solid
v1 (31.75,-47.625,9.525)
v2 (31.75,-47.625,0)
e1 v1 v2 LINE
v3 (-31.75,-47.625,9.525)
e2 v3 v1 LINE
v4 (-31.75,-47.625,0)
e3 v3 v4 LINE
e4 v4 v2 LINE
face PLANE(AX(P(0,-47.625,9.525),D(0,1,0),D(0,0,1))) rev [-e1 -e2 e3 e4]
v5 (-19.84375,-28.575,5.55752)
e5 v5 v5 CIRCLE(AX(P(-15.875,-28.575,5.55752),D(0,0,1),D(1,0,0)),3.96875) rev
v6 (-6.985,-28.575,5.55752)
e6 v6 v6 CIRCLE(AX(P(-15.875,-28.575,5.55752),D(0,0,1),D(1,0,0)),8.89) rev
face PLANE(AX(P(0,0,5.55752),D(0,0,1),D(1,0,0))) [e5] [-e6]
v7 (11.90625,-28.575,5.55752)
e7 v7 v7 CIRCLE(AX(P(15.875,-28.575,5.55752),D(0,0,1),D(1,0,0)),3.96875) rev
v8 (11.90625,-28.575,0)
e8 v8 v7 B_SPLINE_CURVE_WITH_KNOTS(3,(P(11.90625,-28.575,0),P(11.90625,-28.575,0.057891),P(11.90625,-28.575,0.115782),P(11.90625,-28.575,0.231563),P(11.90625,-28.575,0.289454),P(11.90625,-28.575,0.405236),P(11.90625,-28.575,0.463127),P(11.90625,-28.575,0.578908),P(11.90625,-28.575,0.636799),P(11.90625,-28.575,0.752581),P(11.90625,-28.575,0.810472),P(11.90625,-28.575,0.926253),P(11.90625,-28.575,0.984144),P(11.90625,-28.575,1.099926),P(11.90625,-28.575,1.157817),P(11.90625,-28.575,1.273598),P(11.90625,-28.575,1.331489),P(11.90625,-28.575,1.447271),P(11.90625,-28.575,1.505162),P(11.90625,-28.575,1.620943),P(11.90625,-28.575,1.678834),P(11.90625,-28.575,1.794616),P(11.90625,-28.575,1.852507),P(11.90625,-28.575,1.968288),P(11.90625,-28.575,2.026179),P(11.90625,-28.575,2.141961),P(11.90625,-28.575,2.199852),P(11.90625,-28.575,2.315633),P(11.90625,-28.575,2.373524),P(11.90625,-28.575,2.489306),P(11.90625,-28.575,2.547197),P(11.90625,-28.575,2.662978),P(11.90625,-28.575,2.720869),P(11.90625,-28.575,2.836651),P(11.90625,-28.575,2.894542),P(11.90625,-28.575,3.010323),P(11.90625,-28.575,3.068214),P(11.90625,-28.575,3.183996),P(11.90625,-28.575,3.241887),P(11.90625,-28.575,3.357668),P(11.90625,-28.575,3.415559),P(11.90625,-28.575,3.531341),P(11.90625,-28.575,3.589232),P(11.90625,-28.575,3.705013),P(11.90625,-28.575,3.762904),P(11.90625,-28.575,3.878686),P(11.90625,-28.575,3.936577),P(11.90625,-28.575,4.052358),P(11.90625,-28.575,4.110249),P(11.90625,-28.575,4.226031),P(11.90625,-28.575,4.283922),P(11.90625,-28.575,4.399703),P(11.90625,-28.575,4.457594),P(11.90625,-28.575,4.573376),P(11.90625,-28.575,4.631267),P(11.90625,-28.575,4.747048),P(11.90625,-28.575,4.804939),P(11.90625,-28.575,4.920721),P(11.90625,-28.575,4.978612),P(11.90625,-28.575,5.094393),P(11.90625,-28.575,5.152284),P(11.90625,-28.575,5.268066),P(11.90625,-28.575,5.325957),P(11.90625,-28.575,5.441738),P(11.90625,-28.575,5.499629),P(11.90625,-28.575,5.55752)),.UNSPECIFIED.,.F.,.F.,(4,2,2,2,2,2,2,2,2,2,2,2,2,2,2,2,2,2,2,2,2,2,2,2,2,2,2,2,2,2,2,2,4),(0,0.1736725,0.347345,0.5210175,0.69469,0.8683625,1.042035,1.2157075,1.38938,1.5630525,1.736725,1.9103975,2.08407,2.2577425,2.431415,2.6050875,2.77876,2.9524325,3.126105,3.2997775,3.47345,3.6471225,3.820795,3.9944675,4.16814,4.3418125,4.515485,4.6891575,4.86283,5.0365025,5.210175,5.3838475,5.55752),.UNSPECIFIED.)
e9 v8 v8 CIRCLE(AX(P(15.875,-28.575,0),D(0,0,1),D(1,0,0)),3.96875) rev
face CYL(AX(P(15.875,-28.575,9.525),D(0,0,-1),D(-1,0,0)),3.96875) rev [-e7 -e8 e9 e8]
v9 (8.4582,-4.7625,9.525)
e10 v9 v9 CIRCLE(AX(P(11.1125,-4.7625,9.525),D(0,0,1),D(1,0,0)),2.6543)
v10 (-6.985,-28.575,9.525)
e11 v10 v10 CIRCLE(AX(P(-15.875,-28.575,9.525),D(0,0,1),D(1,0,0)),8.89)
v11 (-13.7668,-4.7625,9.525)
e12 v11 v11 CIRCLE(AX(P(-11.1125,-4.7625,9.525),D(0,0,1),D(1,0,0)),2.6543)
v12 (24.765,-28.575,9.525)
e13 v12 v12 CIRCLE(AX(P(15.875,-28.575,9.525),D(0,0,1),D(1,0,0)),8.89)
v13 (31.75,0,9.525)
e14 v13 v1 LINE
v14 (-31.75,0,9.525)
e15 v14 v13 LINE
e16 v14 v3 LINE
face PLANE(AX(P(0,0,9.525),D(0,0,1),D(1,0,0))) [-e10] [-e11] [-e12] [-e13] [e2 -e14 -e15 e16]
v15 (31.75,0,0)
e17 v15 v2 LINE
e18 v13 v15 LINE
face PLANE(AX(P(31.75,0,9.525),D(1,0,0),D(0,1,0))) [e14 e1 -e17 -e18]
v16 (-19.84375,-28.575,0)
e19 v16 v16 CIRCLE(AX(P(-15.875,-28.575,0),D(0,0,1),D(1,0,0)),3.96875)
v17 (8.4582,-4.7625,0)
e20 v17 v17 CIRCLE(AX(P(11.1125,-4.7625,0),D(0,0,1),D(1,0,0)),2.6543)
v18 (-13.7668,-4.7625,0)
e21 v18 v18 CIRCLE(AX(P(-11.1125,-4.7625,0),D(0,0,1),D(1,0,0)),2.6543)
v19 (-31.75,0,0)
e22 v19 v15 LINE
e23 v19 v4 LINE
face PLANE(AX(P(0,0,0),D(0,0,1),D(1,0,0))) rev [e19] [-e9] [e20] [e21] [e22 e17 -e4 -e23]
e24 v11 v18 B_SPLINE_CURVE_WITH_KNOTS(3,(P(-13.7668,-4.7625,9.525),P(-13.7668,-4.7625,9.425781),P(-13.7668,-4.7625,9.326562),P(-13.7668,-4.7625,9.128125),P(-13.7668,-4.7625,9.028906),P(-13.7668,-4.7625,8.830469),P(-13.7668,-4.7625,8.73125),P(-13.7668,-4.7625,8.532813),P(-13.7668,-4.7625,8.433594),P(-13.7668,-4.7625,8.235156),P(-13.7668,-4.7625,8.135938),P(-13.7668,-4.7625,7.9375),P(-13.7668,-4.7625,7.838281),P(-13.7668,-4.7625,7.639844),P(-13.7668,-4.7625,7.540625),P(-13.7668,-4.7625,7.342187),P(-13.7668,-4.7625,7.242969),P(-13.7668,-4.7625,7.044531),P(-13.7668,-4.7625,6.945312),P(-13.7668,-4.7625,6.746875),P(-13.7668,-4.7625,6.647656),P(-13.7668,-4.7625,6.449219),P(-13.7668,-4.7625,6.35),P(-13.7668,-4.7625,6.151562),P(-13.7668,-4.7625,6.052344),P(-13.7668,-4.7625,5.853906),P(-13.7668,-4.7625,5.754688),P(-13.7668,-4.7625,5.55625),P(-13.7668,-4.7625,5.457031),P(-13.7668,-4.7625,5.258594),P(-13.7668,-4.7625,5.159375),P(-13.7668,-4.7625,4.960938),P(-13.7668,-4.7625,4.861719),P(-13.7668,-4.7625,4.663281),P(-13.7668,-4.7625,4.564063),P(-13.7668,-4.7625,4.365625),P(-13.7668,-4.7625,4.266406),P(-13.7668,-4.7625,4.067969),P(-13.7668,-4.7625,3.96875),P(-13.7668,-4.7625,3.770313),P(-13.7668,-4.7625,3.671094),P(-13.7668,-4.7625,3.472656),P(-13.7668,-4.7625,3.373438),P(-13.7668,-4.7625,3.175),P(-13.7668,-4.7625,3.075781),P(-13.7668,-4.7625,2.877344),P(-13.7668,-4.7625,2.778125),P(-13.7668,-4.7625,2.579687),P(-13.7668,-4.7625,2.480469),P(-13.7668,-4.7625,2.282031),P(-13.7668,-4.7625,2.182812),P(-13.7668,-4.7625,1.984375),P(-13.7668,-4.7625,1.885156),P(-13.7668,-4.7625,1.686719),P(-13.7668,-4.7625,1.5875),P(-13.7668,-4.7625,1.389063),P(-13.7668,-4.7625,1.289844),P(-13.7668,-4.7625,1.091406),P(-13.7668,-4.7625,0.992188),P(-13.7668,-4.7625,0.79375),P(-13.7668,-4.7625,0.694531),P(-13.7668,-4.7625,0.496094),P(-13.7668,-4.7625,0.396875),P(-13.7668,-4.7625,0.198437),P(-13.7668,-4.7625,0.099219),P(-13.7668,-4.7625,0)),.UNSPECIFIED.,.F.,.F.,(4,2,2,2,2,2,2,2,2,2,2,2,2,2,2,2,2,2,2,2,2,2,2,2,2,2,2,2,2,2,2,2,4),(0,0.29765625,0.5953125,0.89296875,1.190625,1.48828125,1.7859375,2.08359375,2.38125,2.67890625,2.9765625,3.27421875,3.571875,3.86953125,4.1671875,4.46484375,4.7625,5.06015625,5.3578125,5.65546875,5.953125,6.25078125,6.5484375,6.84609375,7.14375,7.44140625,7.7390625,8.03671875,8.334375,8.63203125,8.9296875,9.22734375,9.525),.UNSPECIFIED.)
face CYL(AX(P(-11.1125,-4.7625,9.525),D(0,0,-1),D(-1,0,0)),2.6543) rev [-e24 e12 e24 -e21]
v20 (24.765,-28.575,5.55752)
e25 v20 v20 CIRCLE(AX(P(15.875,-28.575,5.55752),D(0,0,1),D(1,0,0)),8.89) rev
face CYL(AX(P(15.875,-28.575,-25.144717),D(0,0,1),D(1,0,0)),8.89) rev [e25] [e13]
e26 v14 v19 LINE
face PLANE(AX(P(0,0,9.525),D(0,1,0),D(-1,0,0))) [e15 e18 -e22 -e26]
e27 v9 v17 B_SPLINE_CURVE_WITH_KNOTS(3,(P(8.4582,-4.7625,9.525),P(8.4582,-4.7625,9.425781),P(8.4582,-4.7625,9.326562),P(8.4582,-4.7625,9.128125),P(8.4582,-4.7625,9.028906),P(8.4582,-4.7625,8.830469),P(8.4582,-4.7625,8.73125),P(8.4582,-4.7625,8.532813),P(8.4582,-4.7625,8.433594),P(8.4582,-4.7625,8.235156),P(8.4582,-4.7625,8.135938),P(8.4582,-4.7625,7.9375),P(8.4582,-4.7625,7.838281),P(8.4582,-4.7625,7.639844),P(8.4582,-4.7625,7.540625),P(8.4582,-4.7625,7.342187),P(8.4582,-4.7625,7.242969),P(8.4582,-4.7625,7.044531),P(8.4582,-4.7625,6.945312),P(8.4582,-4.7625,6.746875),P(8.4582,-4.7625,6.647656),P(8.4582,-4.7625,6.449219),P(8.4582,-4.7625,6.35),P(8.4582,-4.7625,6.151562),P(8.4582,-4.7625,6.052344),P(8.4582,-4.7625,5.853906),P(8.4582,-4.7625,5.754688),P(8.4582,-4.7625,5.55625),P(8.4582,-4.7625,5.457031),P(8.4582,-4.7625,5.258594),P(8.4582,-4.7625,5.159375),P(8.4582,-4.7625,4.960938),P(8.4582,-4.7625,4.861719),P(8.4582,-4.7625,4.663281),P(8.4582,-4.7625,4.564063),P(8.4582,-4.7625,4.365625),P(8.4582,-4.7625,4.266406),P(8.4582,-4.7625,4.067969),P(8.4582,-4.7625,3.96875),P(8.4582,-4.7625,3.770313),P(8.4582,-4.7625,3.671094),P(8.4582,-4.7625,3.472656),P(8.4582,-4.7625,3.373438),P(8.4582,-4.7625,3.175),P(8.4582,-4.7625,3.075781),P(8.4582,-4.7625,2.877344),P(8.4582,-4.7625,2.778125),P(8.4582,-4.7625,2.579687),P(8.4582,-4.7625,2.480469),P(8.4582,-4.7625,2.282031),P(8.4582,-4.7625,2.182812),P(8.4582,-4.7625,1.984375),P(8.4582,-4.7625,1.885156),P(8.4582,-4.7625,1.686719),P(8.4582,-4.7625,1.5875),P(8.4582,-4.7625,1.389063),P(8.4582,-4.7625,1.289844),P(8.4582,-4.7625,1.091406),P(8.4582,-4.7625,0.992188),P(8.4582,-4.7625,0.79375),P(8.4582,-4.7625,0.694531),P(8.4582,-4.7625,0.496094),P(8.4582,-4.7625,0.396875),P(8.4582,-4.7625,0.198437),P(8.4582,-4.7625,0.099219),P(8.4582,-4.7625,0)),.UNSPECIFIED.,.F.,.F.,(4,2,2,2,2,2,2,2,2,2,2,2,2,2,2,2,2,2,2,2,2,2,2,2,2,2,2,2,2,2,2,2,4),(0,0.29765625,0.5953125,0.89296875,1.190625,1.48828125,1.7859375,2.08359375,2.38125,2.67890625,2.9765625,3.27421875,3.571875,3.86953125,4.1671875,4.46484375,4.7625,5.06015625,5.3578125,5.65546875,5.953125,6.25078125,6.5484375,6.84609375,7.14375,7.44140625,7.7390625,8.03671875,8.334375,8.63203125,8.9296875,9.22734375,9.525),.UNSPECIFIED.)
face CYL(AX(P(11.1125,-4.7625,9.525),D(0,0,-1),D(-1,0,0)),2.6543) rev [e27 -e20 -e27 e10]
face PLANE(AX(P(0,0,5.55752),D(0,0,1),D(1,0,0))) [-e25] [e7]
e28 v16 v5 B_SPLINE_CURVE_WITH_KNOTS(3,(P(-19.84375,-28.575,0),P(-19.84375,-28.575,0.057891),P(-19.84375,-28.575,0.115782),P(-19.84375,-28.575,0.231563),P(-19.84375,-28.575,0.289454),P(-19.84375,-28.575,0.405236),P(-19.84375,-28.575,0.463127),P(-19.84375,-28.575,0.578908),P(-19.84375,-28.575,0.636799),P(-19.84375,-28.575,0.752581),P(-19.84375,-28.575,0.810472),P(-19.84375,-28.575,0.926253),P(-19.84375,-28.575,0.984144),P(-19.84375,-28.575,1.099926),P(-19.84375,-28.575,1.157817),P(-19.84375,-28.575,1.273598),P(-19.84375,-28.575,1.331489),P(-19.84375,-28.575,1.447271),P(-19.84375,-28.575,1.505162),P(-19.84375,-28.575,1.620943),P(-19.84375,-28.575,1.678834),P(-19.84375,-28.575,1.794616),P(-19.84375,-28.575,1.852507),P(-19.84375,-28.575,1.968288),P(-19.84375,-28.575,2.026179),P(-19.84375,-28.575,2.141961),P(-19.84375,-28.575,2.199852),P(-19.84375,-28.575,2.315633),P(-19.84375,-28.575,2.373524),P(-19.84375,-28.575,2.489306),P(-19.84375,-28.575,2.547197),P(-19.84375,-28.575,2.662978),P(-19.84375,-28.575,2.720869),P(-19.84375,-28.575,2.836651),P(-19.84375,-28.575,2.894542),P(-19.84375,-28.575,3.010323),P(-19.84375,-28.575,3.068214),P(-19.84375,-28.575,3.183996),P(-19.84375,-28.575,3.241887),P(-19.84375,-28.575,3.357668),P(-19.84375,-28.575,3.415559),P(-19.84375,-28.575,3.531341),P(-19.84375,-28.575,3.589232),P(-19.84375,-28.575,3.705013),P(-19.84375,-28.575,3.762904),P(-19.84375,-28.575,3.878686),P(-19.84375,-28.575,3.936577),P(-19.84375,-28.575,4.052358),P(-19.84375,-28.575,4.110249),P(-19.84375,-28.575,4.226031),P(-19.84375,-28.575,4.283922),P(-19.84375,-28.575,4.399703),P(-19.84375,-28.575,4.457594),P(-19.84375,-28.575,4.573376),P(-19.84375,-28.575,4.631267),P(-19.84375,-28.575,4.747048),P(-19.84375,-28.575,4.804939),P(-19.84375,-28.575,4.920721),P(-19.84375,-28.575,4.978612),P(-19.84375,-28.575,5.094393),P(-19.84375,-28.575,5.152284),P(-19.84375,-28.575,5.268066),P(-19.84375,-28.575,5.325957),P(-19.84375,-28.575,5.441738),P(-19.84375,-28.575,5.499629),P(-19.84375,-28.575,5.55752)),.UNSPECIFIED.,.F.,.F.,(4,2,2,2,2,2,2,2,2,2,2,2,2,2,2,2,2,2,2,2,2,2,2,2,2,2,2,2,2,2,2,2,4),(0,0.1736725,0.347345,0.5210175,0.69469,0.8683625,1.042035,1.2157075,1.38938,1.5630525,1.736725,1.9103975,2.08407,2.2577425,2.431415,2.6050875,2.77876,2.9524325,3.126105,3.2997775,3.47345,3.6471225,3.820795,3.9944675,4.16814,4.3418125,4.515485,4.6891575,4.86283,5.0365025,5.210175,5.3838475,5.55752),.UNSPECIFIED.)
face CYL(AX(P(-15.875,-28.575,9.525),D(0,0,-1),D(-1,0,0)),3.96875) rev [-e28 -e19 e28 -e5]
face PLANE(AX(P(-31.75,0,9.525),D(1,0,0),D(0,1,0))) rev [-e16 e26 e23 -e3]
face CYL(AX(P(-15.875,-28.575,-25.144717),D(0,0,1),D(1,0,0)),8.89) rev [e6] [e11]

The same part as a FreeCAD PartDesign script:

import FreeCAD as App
import Part
import Sketcher
Q = App.Units.Quantity

doc = App.newDocument("Part")
body = doc.addObject("PartDesign::Body", "Body")

# Sketch on XY plane
sketch1 = body.newObject("Sketcher::SketchObject", "Sketch")
sketch1.AttachmentSupport = (doc.getObject("XY_Plane"), [""])
sketch1.MapMode = "FlatFace"
sketch1.addGeometry([
    Part.LineSegment(App.Vector(-31.8, 0, 0), App.Vector(-31.8, -47.6, 0)),  # 0
    Part.LineSegment(App.Vector(-31.8, -47.6, 0), App.Vector(31.8, -47.6, 0)),  # 1
    Part.LineSegment(App.Vector(31.8, -47.6, 0), App.Vector(31.8, 0, 0)),  # 2
    Part.LineSegment(App.Vector(31.8, 0, 0), App.Vector(-31.8, 0, 0)),  # 3
    Part.Circle(App.Vector(-11.1, -4.8, 0), App.Vector(0, 0, 1), 2.7),  # 4
    Part.Circle(App.Vector(11.1, -4.8, 0), App.Vector(0, 0, 1), 2.7),  # 5
    Part.Circle(App.Vector(-15.9, -28.6, 0), App.Vector(0, 0, 1), 4),  # 6
    Part.Circle(App.Vector(15.9, -28.6, 0), App.Vector(0, 0, 1), 4),  # 7
], False)
sketch1.addConstraint([
    Sketcher.Constraint("Coincident", 0, 2, 1, 1),
    Sketcher.Constraint("Coincident", 1, 2, 2, 1),
    Sketcher.Constraint("Coincident", 2, 2, 3, 1),
    Sketcher.Constraint("Coincident", 3, 2, 0, 1),
    Sketcher.Constraint("Vertical", 0),
    Sketcher.Constraint("Horizontal", 1),
    Sketcher.Constraint("Vertical", 2),
    Sketcher.Constraint("Horizontal", 3),
    Sketcher.Constraint("Equal", 4, 5),
    Sketcher.Constraint("Equal", 6, 7),
    Sketcher.Constraint("Symmetric", 2, 2, 3, 2, -1, 1),
    Sketcher.Constraint("Symmetric", 4, 3, 5, 3, -2),
    Sketcher.Constraint("Symmetric", 6, 3, 7, 3, -2),
    Sketcher.Constraint("Diameter", 4, Q("0.209 in")),
    Sketcher.Constraint("Diameter", 6, Q("0.3125 in")),
    Sketcher.Constraint("DistanceX", 1, 1, 1, 2, Q("2.5 in")),
    Sketcher.Constraint("DistanceY", 0, 2, 0, 1, Q("1.875 in")),
    Sketcher.Constraint("DistanceX", 6, 3, 7, 3, Q("1.25 in")),
    Sketcher.Constraint("DistanceY", 0, 2, 6, 3, Q("0.75 in")),
    Sketcher.Constraint("DistanceX", 4, 3, -1, 1, Q("0.4375 in")),
    Sketcher.Constraint("DistanceY", 4, 3, -1, 1, Q("0.1875 in")),
])
pad1 = body.newObject("PartDesign::Pad", "Pad")
pad1.Profile = sketch1
pad1.Length = Q("0.375 in")

# Sketch on XY plane
sketch2 = body.newObject("Sketcher::SketchObject", "Sketch001")
sketch2.AttachmentSupport = (doc.getObject("XY_Plane"), [""])
sketch2.MapMode = "FlatFace"
sketch2.AttachmentOffset = App.Placement(App.Vector(0, 0, 0.2188 * 25.4), App.Rotation())
sketch2.addGeometry([
    Part.Circle(App.Vector(-15.9, -28.6, 0), App.Vector(0, 0, 1), 8.9),
    Part.Circle(App.Vector(-15.9, -28.6, 0), App.Vector(0, 0, 1), 4),
    Part.Circle(App.Vector(15.9, -28.6, 0), App.Vector(0, 0, 1), 8.9),
    Part.Circle(App.Vector(15.9, -28.6, 0), App.Vector(0, 0, 1), 4),
], False)
sketch2.addConstraint([
    Sketcher.Constraint("Coincident", 1, 3, 0, 3),
    Sketcher.Constraint("Coincident", 3, 3, 2, 3),
    Sketcher.Constraint("Equal", 0, 2),
    Sketcher.Constraint("Equal", 1, 3),
    Sketcher.Constraint("Symmetric", 0, 3, 2, 3, -2),
    Sketcher.Constraint("Diameter", 0, Q("0.7 in")),
    Sketcher.Constraint("Diameter", 1, Q("0.3125 in")),
    Sketcher.Constraint("DistanceX", 0, 3, 2, 3, Q("1.25 in")),
    Sketcher.Constraint("DistanceY", 0, 3, -1, 1, Q("1.125 in")),
])
pocket1 = body.newObject("PartDesign::Pocket", "Pocket")
pocket1.Profile = sketch2
pocket1.Length = Q("0.1562 in")
pocket1.Reversed = True

doc.recompute()
